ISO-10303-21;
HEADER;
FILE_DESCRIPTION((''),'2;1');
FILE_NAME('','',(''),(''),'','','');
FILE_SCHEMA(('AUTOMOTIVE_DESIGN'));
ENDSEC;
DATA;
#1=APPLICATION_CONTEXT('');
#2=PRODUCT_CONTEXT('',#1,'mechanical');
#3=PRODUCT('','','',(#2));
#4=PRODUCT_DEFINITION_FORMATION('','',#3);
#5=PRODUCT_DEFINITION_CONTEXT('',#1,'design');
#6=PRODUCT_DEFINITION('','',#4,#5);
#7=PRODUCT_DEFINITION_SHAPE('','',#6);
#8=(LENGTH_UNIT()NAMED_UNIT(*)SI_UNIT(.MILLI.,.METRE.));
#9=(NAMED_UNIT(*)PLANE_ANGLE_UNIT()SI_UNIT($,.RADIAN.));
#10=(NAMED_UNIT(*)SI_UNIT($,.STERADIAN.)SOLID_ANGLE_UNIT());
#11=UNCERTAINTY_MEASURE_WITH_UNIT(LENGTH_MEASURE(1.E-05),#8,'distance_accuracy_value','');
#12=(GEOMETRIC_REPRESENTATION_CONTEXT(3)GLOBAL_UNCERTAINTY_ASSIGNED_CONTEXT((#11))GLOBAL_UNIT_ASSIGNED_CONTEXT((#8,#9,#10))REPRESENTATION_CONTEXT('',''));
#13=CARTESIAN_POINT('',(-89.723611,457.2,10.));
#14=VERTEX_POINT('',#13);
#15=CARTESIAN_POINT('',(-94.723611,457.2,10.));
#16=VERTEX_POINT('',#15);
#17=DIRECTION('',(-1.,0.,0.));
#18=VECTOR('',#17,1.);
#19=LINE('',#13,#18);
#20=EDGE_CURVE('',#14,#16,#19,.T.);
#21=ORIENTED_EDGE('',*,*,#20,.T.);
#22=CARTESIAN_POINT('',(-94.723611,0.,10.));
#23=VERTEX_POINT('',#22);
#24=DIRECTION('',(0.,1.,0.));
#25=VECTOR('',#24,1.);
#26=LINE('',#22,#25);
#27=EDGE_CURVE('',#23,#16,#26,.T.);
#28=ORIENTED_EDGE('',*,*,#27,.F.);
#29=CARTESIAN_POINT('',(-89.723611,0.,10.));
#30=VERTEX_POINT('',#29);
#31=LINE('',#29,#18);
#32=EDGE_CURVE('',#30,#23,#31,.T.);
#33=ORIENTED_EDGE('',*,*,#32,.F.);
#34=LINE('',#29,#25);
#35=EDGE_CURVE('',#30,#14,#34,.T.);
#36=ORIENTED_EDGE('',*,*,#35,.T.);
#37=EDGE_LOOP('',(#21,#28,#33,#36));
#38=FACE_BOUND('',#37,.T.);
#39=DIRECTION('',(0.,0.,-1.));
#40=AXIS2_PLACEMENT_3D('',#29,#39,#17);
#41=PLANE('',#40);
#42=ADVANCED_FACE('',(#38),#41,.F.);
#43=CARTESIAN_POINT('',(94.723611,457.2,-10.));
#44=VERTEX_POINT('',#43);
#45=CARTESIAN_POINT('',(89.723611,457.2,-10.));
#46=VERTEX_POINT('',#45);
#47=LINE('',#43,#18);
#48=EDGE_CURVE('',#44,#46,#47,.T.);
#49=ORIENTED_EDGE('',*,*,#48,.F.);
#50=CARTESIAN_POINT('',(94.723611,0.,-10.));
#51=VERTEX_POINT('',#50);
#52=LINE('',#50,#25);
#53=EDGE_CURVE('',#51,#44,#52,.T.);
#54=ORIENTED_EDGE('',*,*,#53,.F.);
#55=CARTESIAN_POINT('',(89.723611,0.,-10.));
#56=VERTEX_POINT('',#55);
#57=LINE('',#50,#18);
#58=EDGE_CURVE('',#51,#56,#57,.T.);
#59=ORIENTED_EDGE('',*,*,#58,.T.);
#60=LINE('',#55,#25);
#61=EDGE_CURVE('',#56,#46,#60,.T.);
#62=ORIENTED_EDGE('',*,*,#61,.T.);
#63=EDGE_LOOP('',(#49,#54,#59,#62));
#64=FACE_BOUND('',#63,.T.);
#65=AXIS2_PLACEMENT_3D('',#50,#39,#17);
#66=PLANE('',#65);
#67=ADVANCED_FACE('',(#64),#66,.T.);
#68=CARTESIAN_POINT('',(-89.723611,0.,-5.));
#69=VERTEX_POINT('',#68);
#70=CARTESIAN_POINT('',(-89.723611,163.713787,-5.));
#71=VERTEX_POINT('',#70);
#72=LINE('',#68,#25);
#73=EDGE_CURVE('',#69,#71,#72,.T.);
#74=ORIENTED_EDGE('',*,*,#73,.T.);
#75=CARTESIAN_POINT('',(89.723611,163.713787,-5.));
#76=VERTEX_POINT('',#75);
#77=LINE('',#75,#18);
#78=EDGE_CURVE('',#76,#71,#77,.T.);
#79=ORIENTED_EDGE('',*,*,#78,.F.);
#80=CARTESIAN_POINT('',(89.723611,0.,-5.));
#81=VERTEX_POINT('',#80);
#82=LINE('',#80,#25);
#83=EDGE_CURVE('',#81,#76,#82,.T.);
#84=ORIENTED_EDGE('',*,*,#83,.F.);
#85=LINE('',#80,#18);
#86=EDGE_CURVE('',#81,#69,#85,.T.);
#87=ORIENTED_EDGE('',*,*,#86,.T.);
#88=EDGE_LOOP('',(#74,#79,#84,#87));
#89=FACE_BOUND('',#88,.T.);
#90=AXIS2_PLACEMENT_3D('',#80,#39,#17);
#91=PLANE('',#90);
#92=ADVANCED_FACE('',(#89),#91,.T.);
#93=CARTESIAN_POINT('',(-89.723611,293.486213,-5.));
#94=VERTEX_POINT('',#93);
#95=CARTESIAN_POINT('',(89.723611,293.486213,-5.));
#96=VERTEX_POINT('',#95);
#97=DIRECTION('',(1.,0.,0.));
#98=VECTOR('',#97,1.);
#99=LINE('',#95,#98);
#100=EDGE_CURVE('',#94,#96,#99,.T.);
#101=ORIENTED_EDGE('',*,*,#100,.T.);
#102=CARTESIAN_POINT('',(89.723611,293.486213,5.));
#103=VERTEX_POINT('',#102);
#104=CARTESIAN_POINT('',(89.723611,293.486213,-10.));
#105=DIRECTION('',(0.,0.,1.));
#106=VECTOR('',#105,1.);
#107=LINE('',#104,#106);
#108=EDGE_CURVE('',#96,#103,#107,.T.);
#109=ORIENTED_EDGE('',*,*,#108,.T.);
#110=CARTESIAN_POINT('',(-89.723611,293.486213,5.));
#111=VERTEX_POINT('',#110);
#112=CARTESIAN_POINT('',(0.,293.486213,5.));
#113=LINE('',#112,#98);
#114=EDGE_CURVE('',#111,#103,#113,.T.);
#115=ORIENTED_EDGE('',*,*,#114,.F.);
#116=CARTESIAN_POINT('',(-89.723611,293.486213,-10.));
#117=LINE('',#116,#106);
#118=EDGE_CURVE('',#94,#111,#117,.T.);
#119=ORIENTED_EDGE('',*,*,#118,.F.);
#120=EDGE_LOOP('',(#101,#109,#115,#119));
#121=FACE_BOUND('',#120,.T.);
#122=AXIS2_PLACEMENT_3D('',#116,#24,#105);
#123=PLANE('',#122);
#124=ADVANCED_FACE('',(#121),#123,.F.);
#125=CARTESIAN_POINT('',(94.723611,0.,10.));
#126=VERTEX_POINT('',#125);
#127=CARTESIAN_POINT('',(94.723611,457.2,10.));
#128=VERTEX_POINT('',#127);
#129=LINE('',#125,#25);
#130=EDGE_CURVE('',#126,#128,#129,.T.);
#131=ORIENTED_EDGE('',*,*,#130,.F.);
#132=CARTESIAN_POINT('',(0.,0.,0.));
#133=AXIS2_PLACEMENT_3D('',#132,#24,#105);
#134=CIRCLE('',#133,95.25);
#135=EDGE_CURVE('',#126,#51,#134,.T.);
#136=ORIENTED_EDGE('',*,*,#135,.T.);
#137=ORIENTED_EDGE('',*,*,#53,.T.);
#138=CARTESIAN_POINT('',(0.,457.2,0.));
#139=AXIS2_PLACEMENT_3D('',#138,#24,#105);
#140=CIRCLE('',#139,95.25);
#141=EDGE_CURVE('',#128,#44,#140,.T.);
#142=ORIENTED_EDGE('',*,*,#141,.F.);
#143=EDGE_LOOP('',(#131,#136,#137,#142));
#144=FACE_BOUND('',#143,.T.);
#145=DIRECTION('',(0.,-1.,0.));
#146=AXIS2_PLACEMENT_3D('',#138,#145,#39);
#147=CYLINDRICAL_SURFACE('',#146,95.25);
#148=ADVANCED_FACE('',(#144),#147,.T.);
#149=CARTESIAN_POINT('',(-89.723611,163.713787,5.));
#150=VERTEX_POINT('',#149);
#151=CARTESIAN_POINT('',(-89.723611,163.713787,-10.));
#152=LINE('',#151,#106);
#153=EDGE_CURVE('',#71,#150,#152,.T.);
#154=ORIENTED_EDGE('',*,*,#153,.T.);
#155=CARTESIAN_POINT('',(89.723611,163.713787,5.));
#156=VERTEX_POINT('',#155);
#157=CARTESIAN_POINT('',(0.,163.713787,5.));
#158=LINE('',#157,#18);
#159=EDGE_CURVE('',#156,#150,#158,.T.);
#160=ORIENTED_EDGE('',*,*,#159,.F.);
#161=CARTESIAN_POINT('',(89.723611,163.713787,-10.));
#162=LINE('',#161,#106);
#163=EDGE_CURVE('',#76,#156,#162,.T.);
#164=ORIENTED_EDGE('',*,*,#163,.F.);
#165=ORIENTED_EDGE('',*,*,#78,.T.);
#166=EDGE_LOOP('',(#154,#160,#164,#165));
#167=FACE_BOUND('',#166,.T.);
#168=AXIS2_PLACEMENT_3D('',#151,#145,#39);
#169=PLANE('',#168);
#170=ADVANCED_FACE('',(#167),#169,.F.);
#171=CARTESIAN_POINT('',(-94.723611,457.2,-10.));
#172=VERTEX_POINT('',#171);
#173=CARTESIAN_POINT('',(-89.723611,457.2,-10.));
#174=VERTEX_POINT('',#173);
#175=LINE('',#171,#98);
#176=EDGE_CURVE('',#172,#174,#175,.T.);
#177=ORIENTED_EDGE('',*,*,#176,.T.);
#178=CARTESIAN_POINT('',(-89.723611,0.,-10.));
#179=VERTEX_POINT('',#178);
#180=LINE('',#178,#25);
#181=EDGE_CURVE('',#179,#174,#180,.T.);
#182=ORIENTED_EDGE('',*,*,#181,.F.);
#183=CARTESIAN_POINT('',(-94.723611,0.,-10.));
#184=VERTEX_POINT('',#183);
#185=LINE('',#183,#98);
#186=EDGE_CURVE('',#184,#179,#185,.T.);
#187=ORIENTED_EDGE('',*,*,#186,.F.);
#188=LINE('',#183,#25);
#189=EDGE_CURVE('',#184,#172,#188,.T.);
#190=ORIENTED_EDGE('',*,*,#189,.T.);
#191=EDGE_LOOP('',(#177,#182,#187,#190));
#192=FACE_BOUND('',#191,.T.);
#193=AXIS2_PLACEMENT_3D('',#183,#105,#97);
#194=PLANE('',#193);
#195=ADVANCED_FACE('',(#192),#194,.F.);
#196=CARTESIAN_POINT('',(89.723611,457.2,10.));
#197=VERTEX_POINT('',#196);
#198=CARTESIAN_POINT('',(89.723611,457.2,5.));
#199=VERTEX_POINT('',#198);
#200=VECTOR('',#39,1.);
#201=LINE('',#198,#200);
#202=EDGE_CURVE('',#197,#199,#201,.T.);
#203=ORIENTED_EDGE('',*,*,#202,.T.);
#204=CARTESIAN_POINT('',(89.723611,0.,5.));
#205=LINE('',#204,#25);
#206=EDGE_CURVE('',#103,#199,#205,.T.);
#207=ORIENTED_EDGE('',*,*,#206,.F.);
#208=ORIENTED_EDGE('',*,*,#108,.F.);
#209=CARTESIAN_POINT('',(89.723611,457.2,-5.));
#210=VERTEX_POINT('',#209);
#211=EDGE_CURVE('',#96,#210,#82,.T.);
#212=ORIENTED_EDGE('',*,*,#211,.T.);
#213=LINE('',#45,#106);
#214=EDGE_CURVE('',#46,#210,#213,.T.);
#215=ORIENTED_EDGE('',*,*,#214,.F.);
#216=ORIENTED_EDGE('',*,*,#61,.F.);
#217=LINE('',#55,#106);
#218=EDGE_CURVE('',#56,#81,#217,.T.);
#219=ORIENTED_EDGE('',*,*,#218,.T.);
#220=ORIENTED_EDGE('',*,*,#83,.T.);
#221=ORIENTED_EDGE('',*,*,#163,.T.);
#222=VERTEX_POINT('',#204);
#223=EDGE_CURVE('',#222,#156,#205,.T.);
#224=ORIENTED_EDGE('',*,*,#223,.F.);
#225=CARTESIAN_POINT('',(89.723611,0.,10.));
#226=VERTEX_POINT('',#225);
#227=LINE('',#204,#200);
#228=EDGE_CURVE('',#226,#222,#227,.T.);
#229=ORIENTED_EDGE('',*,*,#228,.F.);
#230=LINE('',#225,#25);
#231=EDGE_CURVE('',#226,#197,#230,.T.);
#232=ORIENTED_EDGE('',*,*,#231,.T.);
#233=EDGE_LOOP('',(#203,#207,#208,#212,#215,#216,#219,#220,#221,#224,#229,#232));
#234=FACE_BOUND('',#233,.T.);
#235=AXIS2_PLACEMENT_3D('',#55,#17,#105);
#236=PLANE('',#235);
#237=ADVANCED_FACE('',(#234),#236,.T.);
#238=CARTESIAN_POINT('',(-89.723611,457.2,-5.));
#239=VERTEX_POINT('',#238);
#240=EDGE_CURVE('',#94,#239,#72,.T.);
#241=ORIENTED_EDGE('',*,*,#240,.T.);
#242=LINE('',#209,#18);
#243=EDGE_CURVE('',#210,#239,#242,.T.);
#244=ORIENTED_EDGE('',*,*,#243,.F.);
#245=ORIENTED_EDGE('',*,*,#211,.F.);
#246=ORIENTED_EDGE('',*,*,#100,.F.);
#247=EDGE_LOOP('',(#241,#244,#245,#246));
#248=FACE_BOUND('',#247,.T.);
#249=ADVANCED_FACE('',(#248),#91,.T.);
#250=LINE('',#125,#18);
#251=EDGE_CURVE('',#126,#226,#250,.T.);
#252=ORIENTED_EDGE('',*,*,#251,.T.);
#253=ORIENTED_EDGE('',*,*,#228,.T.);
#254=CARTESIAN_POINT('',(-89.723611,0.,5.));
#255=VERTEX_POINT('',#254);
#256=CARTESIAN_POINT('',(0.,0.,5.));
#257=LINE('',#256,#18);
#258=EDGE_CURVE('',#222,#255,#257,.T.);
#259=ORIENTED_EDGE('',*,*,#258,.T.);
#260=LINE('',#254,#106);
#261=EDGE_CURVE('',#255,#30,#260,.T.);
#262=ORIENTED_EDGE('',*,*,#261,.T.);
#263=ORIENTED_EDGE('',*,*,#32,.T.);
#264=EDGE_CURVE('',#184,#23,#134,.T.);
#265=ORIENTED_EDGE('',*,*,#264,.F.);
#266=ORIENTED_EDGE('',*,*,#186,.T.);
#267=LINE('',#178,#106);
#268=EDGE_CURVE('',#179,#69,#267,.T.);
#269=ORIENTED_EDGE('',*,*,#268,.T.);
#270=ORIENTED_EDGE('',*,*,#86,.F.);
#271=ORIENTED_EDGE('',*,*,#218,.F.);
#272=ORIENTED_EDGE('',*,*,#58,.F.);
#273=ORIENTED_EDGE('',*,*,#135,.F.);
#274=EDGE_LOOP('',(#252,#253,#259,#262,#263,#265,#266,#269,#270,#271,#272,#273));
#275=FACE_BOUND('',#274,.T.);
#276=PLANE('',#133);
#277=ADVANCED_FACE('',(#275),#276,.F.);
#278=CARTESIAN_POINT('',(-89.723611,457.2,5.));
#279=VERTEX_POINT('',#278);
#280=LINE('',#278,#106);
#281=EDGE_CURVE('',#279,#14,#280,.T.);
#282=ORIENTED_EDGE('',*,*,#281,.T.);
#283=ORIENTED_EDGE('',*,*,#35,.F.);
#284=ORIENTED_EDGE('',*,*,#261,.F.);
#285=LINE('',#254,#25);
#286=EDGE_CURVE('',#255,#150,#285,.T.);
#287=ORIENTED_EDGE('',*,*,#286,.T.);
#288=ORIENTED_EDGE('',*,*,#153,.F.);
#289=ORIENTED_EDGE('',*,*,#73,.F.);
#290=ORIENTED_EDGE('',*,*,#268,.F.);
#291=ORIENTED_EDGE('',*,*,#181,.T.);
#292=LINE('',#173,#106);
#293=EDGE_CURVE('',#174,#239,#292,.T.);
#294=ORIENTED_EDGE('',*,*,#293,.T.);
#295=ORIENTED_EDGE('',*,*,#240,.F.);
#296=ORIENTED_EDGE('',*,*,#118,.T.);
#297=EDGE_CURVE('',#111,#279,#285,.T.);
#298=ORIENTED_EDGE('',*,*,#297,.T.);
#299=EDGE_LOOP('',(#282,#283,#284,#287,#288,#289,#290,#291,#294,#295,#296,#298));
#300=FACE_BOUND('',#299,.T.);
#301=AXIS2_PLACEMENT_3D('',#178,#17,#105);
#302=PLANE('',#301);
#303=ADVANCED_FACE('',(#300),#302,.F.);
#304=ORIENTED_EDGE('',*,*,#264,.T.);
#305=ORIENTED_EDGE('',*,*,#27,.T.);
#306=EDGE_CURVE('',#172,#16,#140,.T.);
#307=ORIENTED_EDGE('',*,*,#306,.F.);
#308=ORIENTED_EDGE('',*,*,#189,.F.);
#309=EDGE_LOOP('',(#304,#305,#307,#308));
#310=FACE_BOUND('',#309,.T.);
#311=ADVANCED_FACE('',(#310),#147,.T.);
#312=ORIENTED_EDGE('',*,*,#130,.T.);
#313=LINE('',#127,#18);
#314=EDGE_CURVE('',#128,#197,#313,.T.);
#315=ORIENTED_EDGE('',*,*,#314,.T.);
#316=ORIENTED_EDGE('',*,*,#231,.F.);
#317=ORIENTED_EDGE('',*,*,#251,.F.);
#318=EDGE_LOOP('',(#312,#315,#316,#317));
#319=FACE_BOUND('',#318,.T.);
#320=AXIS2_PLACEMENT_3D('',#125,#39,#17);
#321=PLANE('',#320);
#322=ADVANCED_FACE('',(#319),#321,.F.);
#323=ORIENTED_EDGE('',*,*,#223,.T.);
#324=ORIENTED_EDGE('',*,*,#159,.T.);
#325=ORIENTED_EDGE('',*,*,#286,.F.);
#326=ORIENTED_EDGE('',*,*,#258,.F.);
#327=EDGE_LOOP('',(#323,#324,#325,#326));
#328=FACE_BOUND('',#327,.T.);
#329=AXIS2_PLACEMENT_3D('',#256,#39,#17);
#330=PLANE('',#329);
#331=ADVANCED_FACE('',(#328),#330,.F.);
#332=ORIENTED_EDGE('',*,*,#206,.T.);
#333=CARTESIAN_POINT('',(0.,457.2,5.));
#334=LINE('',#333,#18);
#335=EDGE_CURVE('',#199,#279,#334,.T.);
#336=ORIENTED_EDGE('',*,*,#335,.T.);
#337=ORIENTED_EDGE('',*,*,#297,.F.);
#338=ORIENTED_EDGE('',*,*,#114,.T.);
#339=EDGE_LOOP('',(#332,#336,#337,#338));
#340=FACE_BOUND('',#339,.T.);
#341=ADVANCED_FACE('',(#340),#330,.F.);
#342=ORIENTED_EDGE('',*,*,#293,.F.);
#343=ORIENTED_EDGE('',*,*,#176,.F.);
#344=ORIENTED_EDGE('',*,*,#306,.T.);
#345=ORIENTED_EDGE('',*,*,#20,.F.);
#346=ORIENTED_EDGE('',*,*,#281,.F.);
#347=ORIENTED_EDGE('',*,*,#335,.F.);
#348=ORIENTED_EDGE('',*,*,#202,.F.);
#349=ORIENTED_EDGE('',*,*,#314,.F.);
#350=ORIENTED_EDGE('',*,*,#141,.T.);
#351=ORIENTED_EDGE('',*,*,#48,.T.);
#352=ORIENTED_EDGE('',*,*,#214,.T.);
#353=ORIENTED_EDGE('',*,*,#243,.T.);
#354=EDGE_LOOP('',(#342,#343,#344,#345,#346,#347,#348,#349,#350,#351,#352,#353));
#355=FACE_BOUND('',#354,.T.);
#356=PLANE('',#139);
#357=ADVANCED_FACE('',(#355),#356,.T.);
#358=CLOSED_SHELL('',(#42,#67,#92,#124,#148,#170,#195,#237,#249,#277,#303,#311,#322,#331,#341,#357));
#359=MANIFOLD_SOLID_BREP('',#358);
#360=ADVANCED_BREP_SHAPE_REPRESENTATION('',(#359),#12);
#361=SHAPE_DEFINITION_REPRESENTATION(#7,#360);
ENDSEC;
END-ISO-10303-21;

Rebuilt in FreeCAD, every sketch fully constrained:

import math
import FreeCAD as App
import Part
import Sketcher

V = App.Vector
Q = App.Units.Quantity

doc = App.newDocument("Part")
body = doc.addObject("PartDesign::Body", "Body")

# Sketch on XZ plane
sketch1 = body.newObject("Sketcher::SketchObject", "Sketch")
sketch1.AttachmentSupport = (doc.getObject("XZ_Plane"), [""])
sketch1.MapMode = "FlatFace"
sketch1.addGeometry(Part.Circle(V(0, 0, 0), V(0, 0, 1), 95), False)
sketch1.addConstraint(Sketcher.Constraint("Coincident", 0, 3, -1, 1))
sketch1.addConstraint(Sketcher.Constraint("Diameter", 0, Q("190.5 mm")))
pad1 = body.newObject("PartDesign::Pad", "Pad")
pad1.Profile = sketch1
pad1.Length = 457.2
pad1.Reversed = True

# Sketch on XZ plane
sketch2 = body.newObject("Sketcher::SketchObject", "Sketch001")
sketch2.AttachmentSupport = (doc.getObject("XZ_Plane"), [""])
sketch2.MapMode = "FlatFace"
sketch2.AttachmentOffset = App.Placement(V(0, 0, -457.2), App.Rotation())
sketch2.addGeometry(Part.LineSegment(V(90, -5, 0), V(90, -10, 0)), False)
sketch2.addGeometry(Part.LineSegment(V(90, -10, 0), V(95, -10, 0)), False)
sketch2.addGeometry(Part.ArcOfCircle(Part.Circle(V(0, 0, 0), V(0, 0, 1), 95), math.radians(-174), math.radians(-6)), False)
sketch2.addGeometry(Part.LineSegment(V(-95, -10, 0), V(-90, -10, 0)), False)
sketch2.addGeometry(Part.LineSegment(V(-90, -10, 0), V(-90, -5, 0)), False)
sketch2.addGeometry(Part.LineSegment(V(-90, -5, 0), V(90, -5, 0)), False)
sketch2.addConstraint(Sketcher.Constraint("Coincident", 0, 2, 1, 1))
sketch2.addConstraint(Sketcher.Constraint("Coincident", 1, 2, 2, 2))
sketch2.addConstraint(Sketcher.Constraint("Coincident", 2, 1, 3, 1))
sketch2.addConstraint(Sketcher.Constraint("Coincident", 3, 2, 4, 1))
sketch2.addConstraint(Sketcher.Constraint("Coincident", 4, 2, 5, 1))
sketch2.addConstraint(Sketcher.Constraint("Coincident", 5, 2, 0, 1))
sketch2.addConstraint(Sketcher.Constraint("Vertical", 0))
sketch2.addConstraint(Sketcher.Constraint("Horizontal", 1))
sketch2.addConstraint(Sketcher.Constraint("Horizontal", 3))
sketch2.addConstraint(Sketcher.Constraint("Vertical", 4))
sketch2.addConstraint(Sketcher.Constraint("Horizontal", 5))
sketch2.addConstraint(Sketcher.Constraint("Coincident", 2, 3, -1, 1))
sketch2.addConstraint(Sketcher.Constraint("Symmetric", 0, 2, 3, 2, -2))
sketch2.addConstraint(Sketcher.Constraint("Equal", 3, 0))
sketch2.addConstraint(Sketcher.Constraint("DistanceX", 1, 1, 1, 2, Q("5 mm")))
sketch2.addConstraint(Sketcher.Constraint("Radius", 2, Q("95.25 mm")))
sketch2.addConstraint(Sketcher.Constraint("DistanceY", 0, 2, -1, 1, Q("10 mm")))
pocket1 = body.newObject("PartDesign::Pocket", "Pocket")
pocket1.Profile = sketch2
pocket1.Length = 457.2
pocket1.Reversed = True

# Sketch on XZ plane
sketch3 = body.newObject("Sketcher::SketchObject", "Sketch002")
sketch3.AttachmentSupport = (doc.getObject("XZ_Plane"), [""])
sketch3.MapMode = "FlatFace"
sketch3.AttachmentOffset = App.Placement(V(0, 0, -457.2), App.Rotation())
sketch3.addGeometry(Part.LineSegment(V(-90, 5, 0), V(-90, 10, 0)), False)
sketch3.addGeometry(Part.LineSegment(V(-90, 10, 0), V(-95, 10, 0)), False)
sketch3.addGeometry(Part.ArcOfCircle(Part.Circle(V(0, 0, 0), V(0, 0, 1), 95), math.radians(6), math.radians(174)), False)
sketch3.addGeometry(Part.LineSegment(V(95, 10, 0), V(90, 10, 0)), False)
sketch3.addGeometry(Part.LineSegment(V(90, 10, 0), V(90, 5, 0)), False)
sketch3.addGeometry(Part.LineSegment(V(90, 5, 0), V(-90, 5, 0)), False)
sketch3.addConstraint(Sketcher.Constraint("Coincident", 0, 2, 1, 1))
sketch3.addConstraint(Sketcher.Constraint("Coincident", 1, 2, 2, 2))
sketch3.addConstraint(Sketcher.Constraint("Coincident", 2, 1, 3, 1))
sketch3.addConstraint(Sketcher.Constraint("Coincident", 3, 2, 4, 1))
sketch3.addConstraint(Sketcher.Constraint("Coincident", 4, 2, 5, 1))
sketch3.addConstraint(Sketcher.Constraint("Coincident", 5, 2, 0, 1))
sketch3.addConstraint(Sketcher.Constraint("Vertical", 0))
sketch3.addConstraint(Sketcher.Constraint("Horizontal", 1))
sketch3.addConstraint(Sketcher.Constraint("Horizontal", 3))
sketch3.addConstraint(Sketcher.Constraint("Vertical", 4))
sketch3.addConstraint(Sketcher.Constraint("Horizontal", 5))
sketch3.addConstraint(Sketcher.Constraint("Coincident", 2, 3, -1, 1))
sketch3.addConstraint(Sketcher.Constraint("Symmetric", 0, 2, 3, 2, -2))
sketch3.addConstraint(Sketcher.Constraint("Equal", 3, 0))
sketch3.addConstraint(Sketcher.Constraint("DistanceX", 1, 2, 1, 1, Q("5 mm")))
sketch3.addConstraint(Sketcher.Constraint("Radius", 2, Q("95.25 mm")))
sketch3.addConstraint(Sketcher.Constraint("DistanceY", -1, 1, 0, 2, Q("10 mm")))
pocket2 = body.newObject("PartDesign::Pocket", "Pocket001")
pocket2.Profile = sketch3
pocket2.Length = 457.2
pocket2.Reversed = True

# Sketch on XY plane
sketch4 = body.newObject("Sketcher::SketchObject", "Sketch003")
sketch4.AttachmentSupport = (doc.getObject("XY_Plane"), [""])
sketch4.MapMode = "FlatFace"
sketch4.addGeometry(Part.LineSegment(V(-90, 293, 0), V(-90, 164, 0)), False)
sketch4.addGeometry(Part.LineSegment(V(-90, 164, 0), V(90, 164, 0)), False)
sketch4.addGeometry(Part.LineSegment(V(90, 164, 0), V(90, 293, 0)), False)
sketch4.addGeometry(Part.LineSegment(V(90, 293, 0), V(-90, 293, 0)), False)
sketch4.addConstraint(Sketcher.Constraint("Coincident", 0, 2, 1, 1))
sketch4.addConstraint(Sketcher.Constraint("Coincident", 1, 2, 2, 1))
sketch4.addConstraint(Sketcher.Constraint("Coincident", 2, 2, 3, 1))
sketch4.addConstraint(Sketcher.Constraint("Coincident", 3, 2, 0, 1))
sketch4.addConstraint(Sketcher.Constraint("Vertical", 0))
sketch4.addConstraint(Sketcher.Constraint("Horizontal", 1))
sketch4.addConstraint(Sketcher.Constraint("Vertical", 2))
sketch4.addConstraint(Sketcher.Constraint("Horizontal", 3))
sketch4.addConstraint(Sketcher.Constraint("DistanceX", 1, 1, 1, 2, Q("179.447222 mm")))
sketch4.addConstraint(Sketcher.Constraint("DistanceY", 0, 2, 0, 1, Q("129.772425 mm")))
sketch4.addConstraint(Sketcher.Constraint("DistanceX", 0, 2, -1, 1, Q("89.723611 mm")))
sketch4.addConstraint(Sketcher.Constraint("DistanceY", -1, 1, 0, 2, Q("163.713787 mm")))
pocket3 = body.newObject("PartDesign::Pocket", "Pocket002")
pocket3.Profile = sketch4
pocket3.Type = "ThroughAll"
pocket3.Midplane = True

doc.recompute()
